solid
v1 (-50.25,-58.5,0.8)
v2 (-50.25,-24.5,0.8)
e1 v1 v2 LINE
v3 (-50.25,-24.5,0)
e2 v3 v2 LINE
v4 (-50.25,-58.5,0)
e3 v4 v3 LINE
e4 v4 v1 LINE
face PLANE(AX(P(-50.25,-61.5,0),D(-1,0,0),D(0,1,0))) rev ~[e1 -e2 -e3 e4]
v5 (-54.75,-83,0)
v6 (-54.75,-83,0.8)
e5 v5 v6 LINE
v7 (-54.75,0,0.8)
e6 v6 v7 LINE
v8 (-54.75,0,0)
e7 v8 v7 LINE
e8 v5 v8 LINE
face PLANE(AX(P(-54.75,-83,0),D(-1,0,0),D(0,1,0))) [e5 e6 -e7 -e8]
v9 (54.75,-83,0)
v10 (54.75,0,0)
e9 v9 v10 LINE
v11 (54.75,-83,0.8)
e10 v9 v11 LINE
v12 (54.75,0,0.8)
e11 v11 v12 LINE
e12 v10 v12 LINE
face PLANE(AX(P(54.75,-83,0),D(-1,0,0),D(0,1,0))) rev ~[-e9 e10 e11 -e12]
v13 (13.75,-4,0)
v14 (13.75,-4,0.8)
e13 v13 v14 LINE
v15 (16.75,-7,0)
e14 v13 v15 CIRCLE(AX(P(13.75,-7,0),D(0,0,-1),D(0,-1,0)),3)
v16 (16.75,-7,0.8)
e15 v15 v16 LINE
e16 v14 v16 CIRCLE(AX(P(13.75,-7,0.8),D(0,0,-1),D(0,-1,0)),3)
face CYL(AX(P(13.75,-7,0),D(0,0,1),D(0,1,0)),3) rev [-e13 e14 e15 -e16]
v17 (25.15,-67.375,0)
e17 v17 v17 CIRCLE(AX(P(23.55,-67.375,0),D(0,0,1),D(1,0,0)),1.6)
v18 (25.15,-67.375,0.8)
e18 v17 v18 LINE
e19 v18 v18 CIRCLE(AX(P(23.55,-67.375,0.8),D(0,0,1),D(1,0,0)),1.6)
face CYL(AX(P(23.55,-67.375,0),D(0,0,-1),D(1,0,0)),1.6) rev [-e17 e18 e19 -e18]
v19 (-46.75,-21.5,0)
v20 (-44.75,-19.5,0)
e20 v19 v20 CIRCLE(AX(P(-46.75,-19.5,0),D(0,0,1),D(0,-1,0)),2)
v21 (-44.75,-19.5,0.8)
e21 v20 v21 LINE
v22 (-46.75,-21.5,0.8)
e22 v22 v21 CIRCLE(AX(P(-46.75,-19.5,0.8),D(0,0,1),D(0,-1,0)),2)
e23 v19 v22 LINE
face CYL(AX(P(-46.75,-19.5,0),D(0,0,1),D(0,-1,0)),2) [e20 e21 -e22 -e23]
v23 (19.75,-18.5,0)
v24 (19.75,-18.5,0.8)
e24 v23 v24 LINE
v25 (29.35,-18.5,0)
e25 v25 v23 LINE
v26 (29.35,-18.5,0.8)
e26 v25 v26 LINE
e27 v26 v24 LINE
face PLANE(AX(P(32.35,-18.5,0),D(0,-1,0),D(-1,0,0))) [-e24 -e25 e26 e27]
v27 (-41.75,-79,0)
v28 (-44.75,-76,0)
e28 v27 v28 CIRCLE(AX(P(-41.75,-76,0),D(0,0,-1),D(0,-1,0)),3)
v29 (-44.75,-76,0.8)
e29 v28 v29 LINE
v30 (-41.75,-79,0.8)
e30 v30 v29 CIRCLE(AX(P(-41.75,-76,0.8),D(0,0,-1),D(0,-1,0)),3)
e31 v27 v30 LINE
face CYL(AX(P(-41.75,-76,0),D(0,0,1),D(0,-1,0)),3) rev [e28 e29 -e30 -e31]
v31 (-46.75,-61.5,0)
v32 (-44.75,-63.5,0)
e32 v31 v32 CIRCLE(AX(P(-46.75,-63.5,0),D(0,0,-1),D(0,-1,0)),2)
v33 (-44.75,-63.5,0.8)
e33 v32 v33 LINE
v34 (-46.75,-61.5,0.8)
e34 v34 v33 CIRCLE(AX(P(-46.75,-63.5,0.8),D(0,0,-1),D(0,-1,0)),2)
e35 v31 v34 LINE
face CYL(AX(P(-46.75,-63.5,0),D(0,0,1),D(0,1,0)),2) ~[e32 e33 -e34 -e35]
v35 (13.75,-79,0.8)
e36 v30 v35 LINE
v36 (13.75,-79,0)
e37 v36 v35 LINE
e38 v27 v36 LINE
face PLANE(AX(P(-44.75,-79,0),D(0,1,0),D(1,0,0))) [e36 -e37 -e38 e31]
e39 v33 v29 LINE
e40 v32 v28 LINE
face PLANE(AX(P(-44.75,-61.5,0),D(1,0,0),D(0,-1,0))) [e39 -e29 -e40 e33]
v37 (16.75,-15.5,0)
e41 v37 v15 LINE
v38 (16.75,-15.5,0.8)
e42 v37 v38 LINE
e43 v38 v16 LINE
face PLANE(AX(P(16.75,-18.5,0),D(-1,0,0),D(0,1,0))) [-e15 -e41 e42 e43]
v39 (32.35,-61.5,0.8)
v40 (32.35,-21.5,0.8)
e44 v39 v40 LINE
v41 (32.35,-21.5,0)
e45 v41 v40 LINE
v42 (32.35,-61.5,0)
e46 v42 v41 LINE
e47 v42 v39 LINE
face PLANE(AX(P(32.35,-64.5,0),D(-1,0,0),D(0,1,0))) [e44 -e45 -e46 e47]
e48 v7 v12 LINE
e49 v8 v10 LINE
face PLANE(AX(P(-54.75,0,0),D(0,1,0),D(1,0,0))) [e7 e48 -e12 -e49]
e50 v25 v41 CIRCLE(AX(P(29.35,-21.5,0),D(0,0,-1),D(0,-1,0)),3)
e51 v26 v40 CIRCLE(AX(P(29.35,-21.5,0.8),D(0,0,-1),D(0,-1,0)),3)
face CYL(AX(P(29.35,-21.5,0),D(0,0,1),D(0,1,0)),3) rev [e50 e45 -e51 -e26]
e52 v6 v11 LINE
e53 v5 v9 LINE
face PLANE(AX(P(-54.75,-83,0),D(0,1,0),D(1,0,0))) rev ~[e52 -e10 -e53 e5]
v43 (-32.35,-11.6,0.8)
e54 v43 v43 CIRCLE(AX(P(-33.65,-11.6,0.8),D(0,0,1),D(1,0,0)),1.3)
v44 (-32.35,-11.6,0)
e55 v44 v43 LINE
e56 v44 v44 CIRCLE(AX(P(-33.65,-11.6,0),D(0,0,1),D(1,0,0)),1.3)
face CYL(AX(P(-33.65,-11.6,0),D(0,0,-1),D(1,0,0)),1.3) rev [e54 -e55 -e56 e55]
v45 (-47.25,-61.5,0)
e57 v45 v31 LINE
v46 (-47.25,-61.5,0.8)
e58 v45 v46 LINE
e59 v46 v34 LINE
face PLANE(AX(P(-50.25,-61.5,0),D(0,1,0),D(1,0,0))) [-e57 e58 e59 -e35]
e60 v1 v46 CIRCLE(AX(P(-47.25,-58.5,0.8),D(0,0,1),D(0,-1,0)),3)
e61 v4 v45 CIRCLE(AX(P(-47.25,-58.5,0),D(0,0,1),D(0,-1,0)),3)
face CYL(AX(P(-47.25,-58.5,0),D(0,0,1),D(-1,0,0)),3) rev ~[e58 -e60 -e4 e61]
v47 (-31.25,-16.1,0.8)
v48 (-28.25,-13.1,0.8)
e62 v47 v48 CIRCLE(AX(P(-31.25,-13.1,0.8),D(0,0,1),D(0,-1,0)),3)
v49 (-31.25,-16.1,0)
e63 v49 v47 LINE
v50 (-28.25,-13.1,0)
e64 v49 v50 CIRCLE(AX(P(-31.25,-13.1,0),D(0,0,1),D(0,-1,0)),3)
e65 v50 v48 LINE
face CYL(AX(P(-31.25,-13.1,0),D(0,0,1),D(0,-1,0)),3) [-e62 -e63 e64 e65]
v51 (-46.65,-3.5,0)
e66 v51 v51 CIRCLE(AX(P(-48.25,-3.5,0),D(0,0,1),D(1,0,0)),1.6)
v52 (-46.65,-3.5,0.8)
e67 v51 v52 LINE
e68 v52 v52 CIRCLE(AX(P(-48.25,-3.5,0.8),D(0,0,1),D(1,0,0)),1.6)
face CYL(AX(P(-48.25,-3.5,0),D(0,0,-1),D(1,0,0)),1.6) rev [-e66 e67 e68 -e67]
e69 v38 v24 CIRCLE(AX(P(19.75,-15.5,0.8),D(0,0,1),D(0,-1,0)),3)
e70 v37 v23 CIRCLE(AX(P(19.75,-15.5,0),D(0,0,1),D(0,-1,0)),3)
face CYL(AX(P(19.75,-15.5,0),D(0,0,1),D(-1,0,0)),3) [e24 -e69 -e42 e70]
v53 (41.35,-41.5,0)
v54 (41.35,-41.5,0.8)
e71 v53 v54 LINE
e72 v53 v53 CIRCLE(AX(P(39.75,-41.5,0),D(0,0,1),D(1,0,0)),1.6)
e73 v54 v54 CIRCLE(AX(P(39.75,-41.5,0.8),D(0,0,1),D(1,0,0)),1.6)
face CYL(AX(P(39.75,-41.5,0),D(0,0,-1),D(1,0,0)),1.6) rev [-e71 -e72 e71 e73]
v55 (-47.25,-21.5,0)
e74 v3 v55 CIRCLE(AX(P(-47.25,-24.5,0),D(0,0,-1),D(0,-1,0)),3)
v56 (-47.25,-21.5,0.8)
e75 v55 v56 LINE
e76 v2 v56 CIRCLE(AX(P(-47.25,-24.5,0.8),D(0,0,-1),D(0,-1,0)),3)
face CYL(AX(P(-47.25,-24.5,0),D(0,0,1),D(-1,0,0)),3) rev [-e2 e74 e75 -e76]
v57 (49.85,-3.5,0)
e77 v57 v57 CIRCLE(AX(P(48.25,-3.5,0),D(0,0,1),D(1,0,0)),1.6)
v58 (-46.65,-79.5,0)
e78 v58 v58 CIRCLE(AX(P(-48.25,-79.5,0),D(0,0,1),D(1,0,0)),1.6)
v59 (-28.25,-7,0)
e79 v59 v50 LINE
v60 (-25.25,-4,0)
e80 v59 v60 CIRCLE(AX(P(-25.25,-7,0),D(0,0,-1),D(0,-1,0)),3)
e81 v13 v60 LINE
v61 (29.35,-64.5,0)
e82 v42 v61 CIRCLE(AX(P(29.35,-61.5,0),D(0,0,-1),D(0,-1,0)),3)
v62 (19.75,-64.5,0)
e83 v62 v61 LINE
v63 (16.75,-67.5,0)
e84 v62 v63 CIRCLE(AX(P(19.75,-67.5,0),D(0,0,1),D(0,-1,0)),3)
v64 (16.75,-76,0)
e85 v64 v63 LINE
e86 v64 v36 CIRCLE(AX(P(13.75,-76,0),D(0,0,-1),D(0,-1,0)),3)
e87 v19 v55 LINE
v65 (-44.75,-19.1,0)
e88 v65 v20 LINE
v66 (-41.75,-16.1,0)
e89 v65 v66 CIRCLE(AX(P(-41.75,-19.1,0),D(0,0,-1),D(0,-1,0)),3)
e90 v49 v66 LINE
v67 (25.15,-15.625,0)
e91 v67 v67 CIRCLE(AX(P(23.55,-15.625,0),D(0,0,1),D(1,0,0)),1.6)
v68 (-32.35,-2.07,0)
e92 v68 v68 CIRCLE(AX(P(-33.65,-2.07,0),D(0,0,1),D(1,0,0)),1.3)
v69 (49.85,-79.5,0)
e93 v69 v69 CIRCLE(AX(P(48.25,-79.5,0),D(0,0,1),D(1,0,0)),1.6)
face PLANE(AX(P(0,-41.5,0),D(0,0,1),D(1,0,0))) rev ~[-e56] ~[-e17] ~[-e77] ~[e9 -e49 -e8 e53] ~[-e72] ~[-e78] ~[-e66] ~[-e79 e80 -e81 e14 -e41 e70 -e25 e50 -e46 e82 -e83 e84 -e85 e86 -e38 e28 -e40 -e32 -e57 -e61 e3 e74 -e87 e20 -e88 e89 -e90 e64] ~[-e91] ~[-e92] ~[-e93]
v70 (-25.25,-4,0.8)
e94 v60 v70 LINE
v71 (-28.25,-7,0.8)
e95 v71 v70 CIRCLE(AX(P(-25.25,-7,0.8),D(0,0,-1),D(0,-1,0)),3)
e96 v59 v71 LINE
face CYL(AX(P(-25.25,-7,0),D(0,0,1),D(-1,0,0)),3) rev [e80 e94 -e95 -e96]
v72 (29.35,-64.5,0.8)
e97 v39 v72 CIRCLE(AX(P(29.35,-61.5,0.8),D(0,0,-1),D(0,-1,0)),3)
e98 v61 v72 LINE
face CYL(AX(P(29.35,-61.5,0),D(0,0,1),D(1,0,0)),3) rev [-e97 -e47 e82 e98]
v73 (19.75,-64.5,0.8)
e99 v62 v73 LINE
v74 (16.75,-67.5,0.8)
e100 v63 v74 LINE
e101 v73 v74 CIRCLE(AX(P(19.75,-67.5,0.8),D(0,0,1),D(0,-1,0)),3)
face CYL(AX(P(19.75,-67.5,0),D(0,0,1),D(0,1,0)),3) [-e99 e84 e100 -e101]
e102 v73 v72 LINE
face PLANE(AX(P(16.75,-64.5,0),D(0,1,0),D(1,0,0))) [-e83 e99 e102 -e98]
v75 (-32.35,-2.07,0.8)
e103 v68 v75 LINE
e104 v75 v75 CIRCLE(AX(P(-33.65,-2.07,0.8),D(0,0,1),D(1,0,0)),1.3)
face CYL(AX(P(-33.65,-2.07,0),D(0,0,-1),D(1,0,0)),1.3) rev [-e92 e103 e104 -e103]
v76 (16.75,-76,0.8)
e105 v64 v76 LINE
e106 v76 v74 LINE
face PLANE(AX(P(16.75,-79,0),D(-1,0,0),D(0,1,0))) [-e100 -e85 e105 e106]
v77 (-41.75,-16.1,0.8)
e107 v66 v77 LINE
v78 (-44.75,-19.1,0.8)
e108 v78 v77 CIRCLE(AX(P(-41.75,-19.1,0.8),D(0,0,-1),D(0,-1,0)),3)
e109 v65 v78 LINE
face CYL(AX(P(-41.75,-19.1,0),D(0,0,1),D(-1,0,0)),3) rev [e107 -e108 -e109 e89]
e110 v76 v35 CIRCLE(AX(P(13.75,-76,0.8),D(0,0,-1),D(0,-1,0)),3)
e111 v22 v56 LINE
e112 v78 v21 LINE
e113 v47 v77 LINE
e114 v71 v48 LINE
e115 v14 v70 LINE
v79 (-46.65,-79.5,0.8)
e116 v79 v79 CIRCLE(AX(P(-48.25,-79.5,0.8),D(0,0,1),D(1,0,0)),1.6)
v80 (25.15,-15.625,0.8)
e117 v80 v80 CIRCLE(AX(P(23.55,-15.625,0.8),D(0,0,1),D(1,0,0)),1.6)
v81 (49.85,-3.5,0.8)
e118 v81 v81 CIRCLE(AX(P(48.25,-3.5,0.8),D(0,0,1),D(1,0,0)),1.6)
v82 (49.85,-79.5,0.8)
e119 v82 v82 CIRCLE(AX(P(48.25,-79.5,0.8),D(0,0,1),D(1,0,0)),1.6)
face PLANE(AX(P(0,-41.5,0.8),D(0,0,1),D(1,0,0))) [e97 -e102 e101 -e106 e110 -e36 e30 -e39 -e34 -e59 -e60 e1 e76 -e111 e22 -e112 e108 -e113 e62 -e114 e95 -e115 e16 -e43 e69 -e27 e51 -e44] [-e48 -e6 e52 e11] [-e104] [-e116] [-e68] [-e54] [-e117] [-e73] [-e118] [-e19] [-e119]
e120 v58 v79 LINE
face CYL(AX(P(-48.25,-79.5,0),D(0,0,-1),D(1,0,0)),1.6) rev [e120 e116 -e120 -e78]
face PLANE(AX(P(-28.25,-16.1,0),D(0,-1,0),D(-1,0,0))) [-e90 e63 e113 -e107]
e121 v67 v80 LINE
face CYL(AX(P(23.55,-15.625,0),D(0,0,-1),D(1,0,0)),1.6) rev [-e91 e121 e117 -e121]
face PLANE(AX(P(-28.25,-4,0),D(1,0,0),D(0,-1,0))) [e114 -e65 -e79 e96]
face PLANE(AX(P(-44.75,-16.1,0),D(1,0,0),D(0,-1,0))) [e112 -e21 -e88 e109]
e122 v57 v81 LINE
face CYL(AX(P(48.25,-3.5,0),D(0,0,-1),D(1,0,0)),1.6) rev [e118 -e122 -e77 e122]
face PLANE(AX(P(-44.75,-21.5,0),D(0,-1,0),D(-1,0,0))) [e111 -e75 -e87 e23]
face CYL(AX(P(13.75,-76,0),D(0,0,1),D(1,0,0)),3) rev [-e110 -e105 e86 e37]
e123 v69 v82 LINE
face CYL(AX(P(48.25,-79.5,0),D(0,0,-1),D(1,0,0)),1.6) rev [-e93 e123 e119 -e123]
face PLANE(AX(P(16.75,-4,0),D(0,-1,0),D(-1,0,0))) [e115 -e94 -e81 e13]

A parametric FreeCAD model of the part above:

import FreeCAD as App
import Part
import Sketcher
from FreeCAD import Vector
Q = App.Units.Quantity


def edges_at(feature, points):
    """Names of the edges that pass closest to the given points."""
    edges = feature.Shape.Edges
    near = lambda p: min(range(len(edges)), key=lambda i: edges[i].distToShape(Part.Vertex(*p))[0])
    return sorted({f"Edge{near(p) + 1}" for p in points})

doc = App.newDocument("Part")
params = doc.addObject("Spreadsheet::Sheet", "Params")
for row, (alias, value) in enumerate([
    ("sketch1_diameter", "3.2 mm"),
    ("sketch1_diameter2", "2.6 mm"),
    ("sketch1_width", "45 mm"),
    ("sketch1_height", "83 mm"),
    ("sketch1_height2", "40 mm"),
    ("pad1_length", "0.8 mm"),
    ("fillet_radius", "3 mm"),
    ("fillet2_radius", "2 mm"),
], start=1):
    params.set(f"A{row}", alias)
    params.set(f"B{row}", "=" + value)
    params.setAlias(f"B{row}", alias)

body = doc.addObject("PartDesign::Body", "Body")

sketch1 = body.newObject("Sketcher::SketchObject", "Sketch")
sketch1.AttachmentSupport = (doc.getObject("XY_Plane"), [""])
sketch1.MapMode = "FlatFace"
sketch1.addGeometry([
    Part.LineSegment(Vector(-54.8, 0, 0), Vector(-54.8, -83, 0)),
    Part.LineSegment(Vector(-54.8, -83, 0), Vector(54.8, -83, 0)),
    Part.LineSegment(Vector(54.8, -83, 0), Vector(54.8, 0, 0)),
    Part.LineSegment(Vector(54.8, 0, 0), Vector(-54.8, 0, 0)),
    Part.Circle(Vector(-48.2, -79.5, 0), Vector(0, 0, 1), 1.6),
    Part.LineSegment(Vector(-50.2, -61.5, 0), Vector(-50.2, -21.5, 0)),
    Part.LineSegment(Vector(-50.2, -21.5, 0), Vector(-44.8, -21.5, 0)),
    Part.LineSegment(Vector(-44.8, -21.5, 0), Vector(-44.8, -16.1, 0)),
    Part.LineSegment(Vector(-44.8, -16.1, 0), Vector(-28.2, -16.1, 0)),
    Part.LineSegment(Vector(-28.2, -16.1, 0), Vector(-28.2, -4, 0)),
    Part.LineSegment(Vector(-28.2, -4, 0), Vector(16.8, -4, 0)),
    Part.LineSegment(Vector(16.8, -4, 0), Vector(16.8, -18.5, 0)),
    Part.LineSegment(Vector(16.8, -18.5, 0), Vector(32.4, -18.5, 0)),
    Part.LineSegment(Vector(32.4, -18.5, 0), Vector(32.4, -64.5, 0)),
    Part.LineSegment(Vector(32.4, -64.5, 0), Vector(16.8, -64.5, 0)),
    Part.LineSegment(Vector(16.8, -64.5, 0), Vector(16.8, -79, 0)),
    Part.LineSegment(Vector(16.8, -79, 0), Vector(-44.8, -79, 0)),
    Part.LineSegment(Vector(-44.8, -79, 0), Vector(-44.8, -61.5, 0)),
    Part.LineSegment(Vector(-44.8, -61.5, 0), Vector(-50.2, -61.5, 0)),
    Part.Circle(Vector(23.6, -67.4, 0), Vector(0, 0, 1), 1.6),
    Part.Circle(Vector(48.2, -79.5, 0), Vector(0, 0, 1), 1.6),
    Part.Circle(Vector(39.8, -41.5, 0), Vector(0, 0, 1), 1.6),
    Part.Circle(Vector(-33.6, -11.6, 0), Vector(0, 0, 1), 1.3),
    Part.Circle(Vector(-48.2, -3.5, 0), Vector(0, 0, 1), 1.6),
    Part.Circle(Vector(-33.6, -2.1, 0), Vector(0, 0, 1), 1.3),
    Part.Circle(Vector(23.6, -15.6, 0), Vector(0, 0, 1), 1.6),
    Part.Circle(Vector(48.2, -3.5, 0), Vector(0, 0, 1), 1.6),
], False)
sketch1.addConstraint([
    Sketcher.Constraint("Coincident", 0, 2, 1, 1),
    Sketcher.Constraint("Coincident", 1, 2, 2, 1),
    Sketcher.Constraint("Coincident", 2, 2, 3, 1),
    Sketcher.Constraint("Coincident", 3, 2, 0, 1),
    Sketcher.Constraint("Coincident", 5, 2, 6, 1),
    Sketcher.Constraint("Coincident", 6, 2, 7, 1),
    Sketcher.Constraint("Coincident", 7, 2, 8, 1),
    Sketcher.Constraint("Coincident", 8, 2, 9, 1),
    Sketcher.Constraint("Coincident", 9, 2, 10, 1),
    Sketcher.Constraint("Coincident", 10, 2, 11, 1),
    Sketcher.Constraint("Coincident", 11, 2, 12, 1),
    Sketcher.Constraint("Coincident", 12, 2, 13, 1),
    Sketcher.Constraint("Coincident", 13, 2, 14, 1),
    Sketcher.Constraint("Coincident", 14, 2, 15, 1),
    Sketcher.Constraint("Coincident", 15, 2, 16, 1),
    Sketcher.Constraint("Coincident", 16, 2, 17, 1),
    Sketcher.Constraint("Coincident", 17, 2, 18, 1),
    Sketcher.Constraint("Coincident", 18, 2, 5, 1),
    Sketcher.Constraint("Vertical", 0),
    Sketcher.Constraint("Horizontal", 1),
    Sketcher.Constraint("Vertical", 2),
    Sketcher.Constraint("Horizontal", 3),
    Sketcher.Constraint("Vertical", 5),
    Sketcher.Constraint("Horizontal", 6),
    Sketcher.Constraint("Vertical", 7),
    Sketcher.Constraint("Horizontal", 8),
    Sketcher.Constraint("Vertical", 9),
    Sketcher.Constraint("Horizontal", 10),
    Sketcher.Constraint("Vertical", 11),
    Sketcher.Constraint("Horizontal", 12),
    Sketcher.Constraint("Vertical", 13),
    Sketcher.Constraint("Horizontal", 14),
    Sketcher.Constraint("Vertical", 15),
    Sketcher.Constraint("Horizontal", 16),
    Sketcher.Constraint("Vertical", 17),
    Sketcher.Constraint("Horizontal", 18),
    Sketcher.Constraint("Equal", 4, 19),
    Sketcher.Constraint("Equal", 19, 20),
    Sketcher.Constraint("Equal", 20, 21),
    Sketcher.Constraint("Equal", 21, 23),
    Sketcher.Constraint("Equal", 22, 24),
    Sketcher.Constraint("Equal", 23, 25),
    Sketcher.Constraint("Equal", 25, 26),
    Sketcher.Constraint("Symmetric", 2, 2, 3, 2, -1, 1),
    Sketcher.Constraint("Symmetric", 4, 3, 20, 3, -2),
    Sketcher.Constraint("Symmetric", 23, 3, 26, 3, -2),
    Sketcher.Constraint("Vertical", 4, 3, 23, 3),
    Sketcher.Constraint("Vertical", 22, 3, 24, 3),
    Sketcher.Constraint("Vertical", 19, 3, 25, 3),
    Sketcher.Constraint("Vertical", 11, 2, 14, 2),
    Sketcher.Constraint("Vertical", 7, 2, 16, 2),
    Sketcher.Constraint("Equal", 11, 15),
    Sketcher.Constraint("Diameter", 4, Q("3.2 mm")),
    Sketcher.Constraint("Diameter", 22, Q("2.6 mm")),
    Sketcher.Constraint("DistanceX", 10, 1, 10, 2, Q("45 mm")),
    Sketcher.Constraint("DistanceY", 0, 2, 0, 1, Q("83 mm")),
    Sketcher.Constraint("DistanceY", 5, 1, 5, 2, Q("40 mm")),
    Sketcher.Constraint("DistanceY", 13, 2, 13, 1, Q("46 mm")),
    Sketcher.Constraint("DistanceX", 1, 1, 1, 2, Q("109.5 mm")),
    Sketcher.Constraint("DistanceX", 6, 1, 6, 2, Q("5.5 mm")),
    Sketcher.Constraint("DistanceX", 8, 1, 8, 2, Q("16.5 mm")),
    Sketcher.Constraint("DistanceX", 12, 1, 12, 2, Q("15.6 mm")),
    Sketcher.Constraint("DistanceY", 7, 1, 7, 2, Q("5.4 mm")),
    Sketcher.Constraint("DistanceY", 9, 1, 9, 2, Q("12.1 mm")),
    Sketcher.Constraint("DistanceY", 11, 2, 11, 1, Q("14.5 mm")),
    Sketcher.Constraint("DistanceY", 9, 2, -1, 1, Q("4 mm")),
    Sketcher.Constraint("DistanceY", 20, 3, 21, 3, Q("38 mm")),
    Sketcher.Constraint("DistanceX", 4, 3, 21, 3, Q("88 mm")),
    Sketcher.Constraint("DistanceY", 4, 3, 23, 3, Q("76 mm")),
    Sketcher.Constraint("DistanceX", 21, 3, 1, 2, Q("15 mm")),
    Sketcher.Constraint("DistanceX", 5, 2, 23, 3, Q("2 mm")),
    Sketcher.Constraint("DistanceY", 5, 2, 23, 3, Q("18 mm")),
    Sketcher.Constraint("DistanceY", 22, 3, -1, 1, Q("11.6 mm")),
    Sketcher.Constraint("DistanceX", 4, 3, 19, 3, Q("71.8 mm")),
    Sketcher.Constraint("DistanceX", 4, 3, 22, 3, Q("14.6 mm")),
    Sketcher.Constraint("DistanceY", 24, 3, -1, 1, Q("2.07 mm")),
    Sketcher.Constraint("DistanceY", 19, 3, 25, 3, Q("51.75 mm")),
    Sketcher.Constraint("DistanceY", 19, 3, -1, 1, Q("67.375 mm")),
])
sketch1.setExpression("Constraints[52]", "Params.sketch1_diameter")
sketch1.setExpression("Constraints[53]", "Params.sketch1_diameter2")
sketch1.setExpression("Constraints[54]", "Params.sketch1_width")
sketch1.setExpression("Constraints[55]", "Params.sketch1_height")
sketch1.setExpression("Constraints[56]", "Params.sketch1_height2")
pad1 = body.newObject("PartDesign::Pad", "Pad")
pad1.Profile = sketch1
pad1.setExpression("Length", "Params.pad1_length")
doc.recompute()

fillet = body.newObject("PartDesign::Fillet", "Fillet")
fillet.Base = (pad1, edges_at(pad1, [
    (32.35, -64.5, 0.4),
    (32.35, -18.5, 0.4),
    (16.75, -18.5, 0.4),
    (16.75, -4, 0.4),
    (-28.25, -4, 0.4),
    (-28.25, -16.1, 0.4),
    (-44.75, -16.1, 0.4),
    (-50.25, -21.5, 0.4),
    (-50.25, -61.5, 0.4),
    (-44.75, -79, 0.4),
    (16.75, -79, 0.4),
    (16.75, -64.5, 0.4),
]))
fillet.setExpression("Radius", "Params.fillet_radius")
doc.recompute()

fillet2 = body.newObject("PartDesign::Fillet", "Fillet001")
fillet2.Base = (fillet, edges_at(fillet, [(-44.75, -21.5, 0.4), (-44.75, -61.5, 0.4)]))
fillet2.setExpression("Radius", "Params.fillet2_radius")

doc.recompute()
